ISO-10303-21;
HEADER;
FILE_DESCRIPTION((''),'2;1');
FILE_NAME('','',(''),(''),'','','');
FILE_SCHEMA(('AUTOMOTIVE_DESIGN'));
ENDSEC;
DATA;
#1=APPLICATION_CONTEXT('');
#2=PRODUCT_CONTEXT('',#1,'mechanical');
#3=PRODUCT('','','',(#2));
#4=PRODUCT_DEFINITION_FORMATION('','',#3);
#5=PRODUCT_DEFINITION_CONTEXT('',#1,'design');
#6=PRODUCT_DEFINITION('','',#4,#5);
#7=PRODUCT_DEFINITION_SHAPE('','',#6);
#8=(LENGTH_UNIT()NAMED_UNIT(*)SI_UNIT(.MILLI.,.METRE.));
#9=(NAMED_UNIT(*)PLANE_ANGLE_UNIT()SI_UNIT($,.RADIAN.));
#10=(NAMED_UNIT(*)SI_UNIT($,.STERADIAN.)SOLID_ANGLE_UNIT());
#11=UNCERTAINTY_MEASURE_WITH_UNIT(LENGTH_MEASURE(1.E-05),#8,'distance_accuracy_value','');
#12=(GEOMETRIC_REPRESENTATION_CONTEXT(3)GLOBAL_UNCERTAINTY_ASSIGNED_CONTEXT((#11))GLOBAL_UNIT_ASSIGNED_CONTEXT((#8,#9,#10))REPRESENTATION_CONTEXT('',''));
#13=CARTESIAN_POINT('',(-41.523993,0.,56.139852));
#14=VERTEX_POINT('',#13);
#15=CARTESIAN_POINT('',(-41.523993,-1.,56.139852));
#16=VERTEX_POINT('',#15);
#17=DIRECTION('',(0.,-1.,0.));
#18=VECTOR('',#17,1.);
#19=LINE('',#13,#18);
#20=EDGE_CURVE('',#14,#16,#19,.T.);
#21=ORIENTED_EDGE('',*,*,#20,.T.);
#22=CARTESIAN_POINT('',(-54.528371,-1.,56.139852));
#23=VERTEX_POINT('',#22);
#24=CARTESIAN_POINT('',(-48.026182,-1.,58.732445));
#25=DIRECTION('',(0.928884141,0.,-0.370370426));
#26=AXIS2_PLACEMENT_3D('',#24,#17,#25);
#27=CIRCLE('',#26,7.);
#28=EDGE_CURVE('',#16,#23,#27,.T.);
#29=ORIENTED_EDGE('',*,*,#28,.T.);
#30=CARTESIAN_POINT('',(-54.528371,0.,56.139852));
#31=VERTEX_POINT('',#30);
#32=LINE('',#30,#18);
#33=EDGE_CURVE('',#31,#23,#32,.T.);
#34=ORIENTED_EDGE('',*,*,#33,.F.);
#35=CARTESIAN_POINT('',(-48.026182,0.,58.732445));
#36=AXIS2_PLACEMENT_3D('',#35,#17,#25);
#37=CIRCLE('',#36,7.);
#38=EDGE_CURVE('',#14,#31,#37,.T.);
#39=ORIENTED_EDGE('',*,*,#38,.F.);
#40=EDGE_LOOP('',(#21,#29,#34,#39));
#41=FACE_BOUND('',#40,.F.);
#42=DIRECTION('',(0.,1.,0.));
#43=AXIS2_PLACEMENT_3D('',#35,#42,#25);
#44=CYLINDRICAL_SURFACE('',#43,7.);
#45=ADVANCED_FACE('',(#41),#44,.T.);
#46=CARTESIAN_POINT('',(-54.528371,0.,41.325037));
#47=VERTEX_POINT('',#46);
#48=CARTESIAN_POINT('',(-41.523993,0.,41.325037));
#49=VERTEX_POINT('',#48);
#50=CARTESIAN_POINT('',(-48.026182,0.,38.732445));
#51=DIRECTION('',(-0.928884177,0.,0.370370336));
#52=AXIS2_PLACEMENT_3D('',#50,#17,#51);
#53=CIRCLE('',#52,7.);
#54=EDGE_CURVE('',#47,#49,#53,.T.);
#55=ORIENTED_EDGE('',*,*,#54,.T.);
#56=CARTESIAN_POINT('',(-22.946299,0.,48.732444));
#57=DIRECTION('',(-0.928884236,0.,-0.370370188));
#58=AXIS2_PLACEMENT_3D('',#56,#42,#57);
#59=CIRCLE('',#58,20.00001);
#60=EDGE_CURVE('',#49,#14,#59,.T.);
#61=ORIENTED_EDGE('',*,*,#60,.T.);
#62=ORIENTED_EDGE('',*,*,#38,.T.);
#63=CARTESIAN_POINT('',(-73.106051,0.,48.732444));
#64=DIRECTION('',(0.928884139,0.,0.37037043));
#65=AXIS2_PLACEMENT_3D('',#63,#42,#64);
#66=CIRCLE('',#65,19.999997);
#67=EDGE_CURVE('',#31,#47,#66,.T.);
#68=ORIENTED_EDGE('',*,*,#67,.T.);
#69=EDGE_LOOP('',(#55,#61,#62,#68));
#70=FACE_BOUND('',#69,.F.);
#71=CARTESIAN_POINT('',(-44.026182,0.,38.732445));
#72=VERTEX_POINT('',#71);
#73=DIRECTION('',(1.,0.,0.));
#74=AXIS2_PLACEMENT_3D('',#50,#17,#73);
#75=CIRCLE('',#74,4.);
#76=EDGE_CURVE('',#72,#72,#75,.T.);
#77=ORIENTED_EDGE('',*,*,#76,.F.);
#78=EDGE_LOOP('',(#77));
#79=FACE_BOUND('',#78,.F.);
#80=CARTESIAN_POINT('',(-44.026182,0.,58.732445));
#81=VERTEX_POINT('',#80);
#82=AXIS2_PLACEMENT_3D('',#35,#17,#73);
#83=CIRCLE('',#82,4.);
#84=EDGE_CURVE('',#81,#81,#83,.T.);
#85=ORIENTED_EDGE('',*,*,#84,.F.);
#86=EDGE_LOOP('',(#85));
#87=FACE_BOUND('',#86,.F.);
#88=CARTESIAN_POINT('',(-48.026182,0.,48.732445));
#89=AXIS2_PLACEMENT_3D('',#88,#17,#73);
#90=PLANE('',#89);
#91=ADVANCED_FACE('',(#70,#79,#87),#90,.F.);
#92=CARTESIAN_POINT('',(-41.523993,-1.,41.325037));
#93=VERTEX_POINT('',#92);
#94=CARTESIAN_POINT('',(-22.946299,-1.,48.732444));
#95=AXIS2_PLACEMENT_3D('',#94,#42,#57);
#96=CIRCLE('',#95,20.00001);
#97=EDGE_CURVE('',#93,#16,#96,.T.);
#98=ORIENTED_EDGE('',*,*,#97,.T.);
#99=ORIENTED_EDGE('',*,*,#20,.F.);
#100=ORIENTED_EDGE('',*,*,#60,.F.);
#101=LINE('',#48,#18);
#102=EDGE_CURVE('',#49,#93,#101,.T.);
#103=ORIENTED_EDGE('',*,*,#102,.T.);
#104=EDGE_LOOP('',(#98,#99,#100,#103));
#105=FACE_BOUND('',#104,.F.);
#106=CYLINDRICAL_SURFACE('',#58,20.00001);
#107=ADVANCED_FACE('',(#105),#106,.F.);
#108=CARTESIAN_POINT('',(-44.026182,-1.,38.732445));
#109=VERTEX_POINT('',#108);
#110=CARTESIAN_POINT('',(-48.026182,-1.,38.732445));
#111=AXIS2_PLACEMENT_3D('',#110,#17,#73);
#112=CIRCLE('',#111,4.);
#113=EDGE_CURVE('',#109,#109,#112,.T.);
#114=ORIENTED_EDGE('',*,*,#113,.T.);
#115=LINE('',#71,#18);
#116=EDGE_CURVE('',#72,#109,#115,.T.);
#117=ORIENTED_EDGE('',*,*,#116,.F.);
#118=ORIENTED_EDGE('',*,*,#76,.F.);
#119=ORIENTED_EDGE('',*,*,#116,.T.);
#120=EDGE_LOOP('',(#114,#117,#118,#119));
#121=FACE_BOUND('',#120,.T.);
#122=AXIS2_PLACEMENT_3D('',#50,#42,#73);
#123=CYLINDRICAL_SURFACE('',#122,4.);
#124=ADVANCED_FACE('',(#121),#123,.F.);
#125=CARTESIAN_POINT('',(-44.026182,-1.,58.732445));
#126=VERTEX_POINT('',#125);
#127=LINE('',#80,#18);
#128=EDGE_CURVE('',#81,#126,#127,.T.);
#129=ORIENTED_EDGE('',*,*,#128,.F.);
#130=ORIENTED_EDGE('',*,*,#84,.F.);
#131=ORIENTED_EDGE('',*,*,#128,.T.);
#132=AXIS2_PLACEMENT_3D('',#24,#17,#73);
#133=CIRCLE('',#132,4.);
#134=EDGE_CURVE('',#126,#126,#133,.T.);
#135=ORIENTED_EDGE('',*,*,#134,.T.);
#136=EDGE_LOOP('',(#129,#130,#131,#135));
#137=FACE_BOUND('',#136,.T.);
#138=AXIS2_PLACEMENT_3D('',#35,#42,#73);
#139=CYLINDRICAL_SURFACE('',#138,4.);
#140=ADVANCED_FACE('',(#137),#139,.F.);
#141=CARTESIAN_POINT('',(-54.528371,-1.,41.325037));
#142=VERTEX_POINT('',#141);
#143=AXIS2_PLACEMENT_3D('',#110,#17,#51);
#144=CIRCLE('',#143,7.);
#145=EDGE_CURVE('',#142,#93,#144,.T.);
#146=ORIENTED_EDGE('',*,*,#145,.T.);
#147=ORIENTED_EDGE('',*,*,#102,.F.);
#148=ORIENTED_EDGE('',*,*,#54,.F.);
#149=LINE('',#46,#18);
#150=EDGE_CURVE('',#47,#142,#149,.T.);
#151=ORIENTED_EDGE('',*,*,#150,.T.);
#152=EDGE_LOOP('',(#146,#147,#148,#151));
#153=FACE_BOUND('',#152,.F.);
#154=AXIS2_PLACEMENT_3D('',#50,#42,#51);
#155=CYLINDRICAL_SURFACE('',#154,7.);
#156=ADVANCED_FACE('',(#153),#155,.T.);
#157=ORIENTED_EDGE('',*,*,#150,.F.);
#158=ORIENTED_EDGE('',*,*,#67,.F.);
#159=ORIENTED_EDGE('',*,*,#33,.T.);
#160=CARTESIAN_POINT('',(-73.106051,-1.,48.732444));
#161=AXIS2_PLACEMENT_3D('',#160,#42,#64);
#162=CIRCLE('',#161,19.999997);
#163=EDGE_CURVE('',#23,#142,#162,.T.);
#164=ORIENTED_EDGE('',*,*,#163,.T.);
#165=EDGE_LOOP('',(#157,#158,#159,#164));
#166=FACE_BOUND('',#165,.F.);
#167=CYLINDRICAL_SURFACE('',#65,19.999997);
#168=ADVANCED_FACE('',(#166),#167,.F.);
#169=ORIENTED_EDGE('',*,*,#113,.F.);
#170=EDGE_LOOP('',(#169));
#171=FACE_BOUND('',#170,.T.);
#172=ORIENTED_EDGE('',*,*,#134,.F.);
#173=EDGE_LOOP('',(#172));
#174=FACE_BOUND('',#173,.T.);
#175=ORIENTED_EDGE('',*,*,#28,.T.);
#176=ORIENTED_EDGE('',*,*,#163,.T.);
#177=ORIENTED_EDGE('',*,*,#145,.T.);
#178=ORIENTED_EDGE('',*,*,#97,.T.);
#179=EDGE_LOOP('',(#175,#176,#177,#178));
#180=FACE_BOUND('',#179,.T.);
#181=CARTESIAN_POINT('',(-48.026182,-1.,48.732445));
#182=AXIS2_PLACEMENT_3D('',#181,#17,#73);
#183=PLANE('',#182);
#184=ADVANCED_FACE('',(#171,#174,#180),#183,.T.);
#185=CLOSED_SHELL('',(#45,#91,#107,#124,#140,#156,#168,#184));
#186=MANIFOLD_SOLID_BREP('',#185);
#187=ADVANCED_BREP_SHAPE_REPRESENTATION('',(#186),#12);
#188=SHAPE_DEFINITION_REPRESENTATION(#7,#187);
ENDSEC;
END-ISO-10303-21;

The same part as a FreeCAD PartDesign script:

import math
import FreeCAD as App
import Part
import Sketcher
Q = App.Units.Quantity

doc = App.newDocument("Part")
body = doc.addObject("PartDesign::Body", "Body")

sketch1 = body.newObject("Sketcher::SketchObject", "Sketch")
sketch1.AttachmentSupport = (doc.getObject("XZ_Plane"), [""])
sketch1.MapMode = "FlatFace"
sketch1.addGeometry([
    Part.ArcOfCircle(Part.Circle(App.Vector(-22.9, 48.7, 0), App.Vector(0, 0, 1), 20), math.radians(158), math.radians(202)),
    Part.ArcOfCircle(Part.Circle(App.Vector(-48, 58.7, 0), App.Vector(0, 0, 1), 7), math.radians(-22), math.radians(202)),
    Part.ArcOfCircle(Part.Circle(App.Vector(-73.1, 48.7, 0), App.Vector(0, 0, 1), 20), math.radians(-22), math.radians(22)),
    Part.ArcOfCircle(Part.Circle(App.Vector(-48, 38.7, 0), App.Vector(0, 0, 1), 7), math.radians(158), math.radians(382)),
    Part.Circle(App.Vector(-48, 38.7, 0), App.Vector(0, 0, 1), 4),
    Part.Circle(App.Vector(-48, 58.7, 0), App.Vector(0, 0, 1), 4),
], False)
sketch1.addConstraint([
    Sketcher.Constraint("Tangent", 0, 1, 1, 1),
    Sketcher.Constraint("Tangent", 1, 2, 2, 2),
    Sketcher.Constraint("Tangent", 2, 1, 3, 1),
    Sketcher.Constraint("Tangent", 3, 2, 0, 2),
    Sketcher.Constraint("Coincident", 4, 3, 3, 3),
    Sketcher.Constraint("Coincident", 5, 3, 1, 3),
    Sketcher.Constraint("Equal", 1, 3),
    Sketcher.Constraint("Equal", 4, 5),
    Sketcher.Constraint("Horizontal", 0, 3, 2, 3),
    Sketcher.Constraint("Horizontal", 0, 1, 1, 2),
    Sketcher.Constraint("Diameter", 4, Q("8 mm")),
    Sketcher.Constraint("Radius", 1, Q("7 mm")),
    Sketcher.Constraint("DistanceY", 0, 3, 1, 3, Q("10 mm")),
    Sketcher.Constraint("Radius", 0, Q("20.00001 mm")),
    Sketcher.Constraint("DistanceX", 0, 3, -1, 1, Q("22.946299 mm")),
    Sketcher.Constraint("DistanceY", -1, 1, 0, 1, Q("56.139852 mm")),
])
pad1 = body.newObject("PartDesign::Pad", "Pad")
pad1.Profile = sketch1
pad1.Length = 1

doc.recompute()
